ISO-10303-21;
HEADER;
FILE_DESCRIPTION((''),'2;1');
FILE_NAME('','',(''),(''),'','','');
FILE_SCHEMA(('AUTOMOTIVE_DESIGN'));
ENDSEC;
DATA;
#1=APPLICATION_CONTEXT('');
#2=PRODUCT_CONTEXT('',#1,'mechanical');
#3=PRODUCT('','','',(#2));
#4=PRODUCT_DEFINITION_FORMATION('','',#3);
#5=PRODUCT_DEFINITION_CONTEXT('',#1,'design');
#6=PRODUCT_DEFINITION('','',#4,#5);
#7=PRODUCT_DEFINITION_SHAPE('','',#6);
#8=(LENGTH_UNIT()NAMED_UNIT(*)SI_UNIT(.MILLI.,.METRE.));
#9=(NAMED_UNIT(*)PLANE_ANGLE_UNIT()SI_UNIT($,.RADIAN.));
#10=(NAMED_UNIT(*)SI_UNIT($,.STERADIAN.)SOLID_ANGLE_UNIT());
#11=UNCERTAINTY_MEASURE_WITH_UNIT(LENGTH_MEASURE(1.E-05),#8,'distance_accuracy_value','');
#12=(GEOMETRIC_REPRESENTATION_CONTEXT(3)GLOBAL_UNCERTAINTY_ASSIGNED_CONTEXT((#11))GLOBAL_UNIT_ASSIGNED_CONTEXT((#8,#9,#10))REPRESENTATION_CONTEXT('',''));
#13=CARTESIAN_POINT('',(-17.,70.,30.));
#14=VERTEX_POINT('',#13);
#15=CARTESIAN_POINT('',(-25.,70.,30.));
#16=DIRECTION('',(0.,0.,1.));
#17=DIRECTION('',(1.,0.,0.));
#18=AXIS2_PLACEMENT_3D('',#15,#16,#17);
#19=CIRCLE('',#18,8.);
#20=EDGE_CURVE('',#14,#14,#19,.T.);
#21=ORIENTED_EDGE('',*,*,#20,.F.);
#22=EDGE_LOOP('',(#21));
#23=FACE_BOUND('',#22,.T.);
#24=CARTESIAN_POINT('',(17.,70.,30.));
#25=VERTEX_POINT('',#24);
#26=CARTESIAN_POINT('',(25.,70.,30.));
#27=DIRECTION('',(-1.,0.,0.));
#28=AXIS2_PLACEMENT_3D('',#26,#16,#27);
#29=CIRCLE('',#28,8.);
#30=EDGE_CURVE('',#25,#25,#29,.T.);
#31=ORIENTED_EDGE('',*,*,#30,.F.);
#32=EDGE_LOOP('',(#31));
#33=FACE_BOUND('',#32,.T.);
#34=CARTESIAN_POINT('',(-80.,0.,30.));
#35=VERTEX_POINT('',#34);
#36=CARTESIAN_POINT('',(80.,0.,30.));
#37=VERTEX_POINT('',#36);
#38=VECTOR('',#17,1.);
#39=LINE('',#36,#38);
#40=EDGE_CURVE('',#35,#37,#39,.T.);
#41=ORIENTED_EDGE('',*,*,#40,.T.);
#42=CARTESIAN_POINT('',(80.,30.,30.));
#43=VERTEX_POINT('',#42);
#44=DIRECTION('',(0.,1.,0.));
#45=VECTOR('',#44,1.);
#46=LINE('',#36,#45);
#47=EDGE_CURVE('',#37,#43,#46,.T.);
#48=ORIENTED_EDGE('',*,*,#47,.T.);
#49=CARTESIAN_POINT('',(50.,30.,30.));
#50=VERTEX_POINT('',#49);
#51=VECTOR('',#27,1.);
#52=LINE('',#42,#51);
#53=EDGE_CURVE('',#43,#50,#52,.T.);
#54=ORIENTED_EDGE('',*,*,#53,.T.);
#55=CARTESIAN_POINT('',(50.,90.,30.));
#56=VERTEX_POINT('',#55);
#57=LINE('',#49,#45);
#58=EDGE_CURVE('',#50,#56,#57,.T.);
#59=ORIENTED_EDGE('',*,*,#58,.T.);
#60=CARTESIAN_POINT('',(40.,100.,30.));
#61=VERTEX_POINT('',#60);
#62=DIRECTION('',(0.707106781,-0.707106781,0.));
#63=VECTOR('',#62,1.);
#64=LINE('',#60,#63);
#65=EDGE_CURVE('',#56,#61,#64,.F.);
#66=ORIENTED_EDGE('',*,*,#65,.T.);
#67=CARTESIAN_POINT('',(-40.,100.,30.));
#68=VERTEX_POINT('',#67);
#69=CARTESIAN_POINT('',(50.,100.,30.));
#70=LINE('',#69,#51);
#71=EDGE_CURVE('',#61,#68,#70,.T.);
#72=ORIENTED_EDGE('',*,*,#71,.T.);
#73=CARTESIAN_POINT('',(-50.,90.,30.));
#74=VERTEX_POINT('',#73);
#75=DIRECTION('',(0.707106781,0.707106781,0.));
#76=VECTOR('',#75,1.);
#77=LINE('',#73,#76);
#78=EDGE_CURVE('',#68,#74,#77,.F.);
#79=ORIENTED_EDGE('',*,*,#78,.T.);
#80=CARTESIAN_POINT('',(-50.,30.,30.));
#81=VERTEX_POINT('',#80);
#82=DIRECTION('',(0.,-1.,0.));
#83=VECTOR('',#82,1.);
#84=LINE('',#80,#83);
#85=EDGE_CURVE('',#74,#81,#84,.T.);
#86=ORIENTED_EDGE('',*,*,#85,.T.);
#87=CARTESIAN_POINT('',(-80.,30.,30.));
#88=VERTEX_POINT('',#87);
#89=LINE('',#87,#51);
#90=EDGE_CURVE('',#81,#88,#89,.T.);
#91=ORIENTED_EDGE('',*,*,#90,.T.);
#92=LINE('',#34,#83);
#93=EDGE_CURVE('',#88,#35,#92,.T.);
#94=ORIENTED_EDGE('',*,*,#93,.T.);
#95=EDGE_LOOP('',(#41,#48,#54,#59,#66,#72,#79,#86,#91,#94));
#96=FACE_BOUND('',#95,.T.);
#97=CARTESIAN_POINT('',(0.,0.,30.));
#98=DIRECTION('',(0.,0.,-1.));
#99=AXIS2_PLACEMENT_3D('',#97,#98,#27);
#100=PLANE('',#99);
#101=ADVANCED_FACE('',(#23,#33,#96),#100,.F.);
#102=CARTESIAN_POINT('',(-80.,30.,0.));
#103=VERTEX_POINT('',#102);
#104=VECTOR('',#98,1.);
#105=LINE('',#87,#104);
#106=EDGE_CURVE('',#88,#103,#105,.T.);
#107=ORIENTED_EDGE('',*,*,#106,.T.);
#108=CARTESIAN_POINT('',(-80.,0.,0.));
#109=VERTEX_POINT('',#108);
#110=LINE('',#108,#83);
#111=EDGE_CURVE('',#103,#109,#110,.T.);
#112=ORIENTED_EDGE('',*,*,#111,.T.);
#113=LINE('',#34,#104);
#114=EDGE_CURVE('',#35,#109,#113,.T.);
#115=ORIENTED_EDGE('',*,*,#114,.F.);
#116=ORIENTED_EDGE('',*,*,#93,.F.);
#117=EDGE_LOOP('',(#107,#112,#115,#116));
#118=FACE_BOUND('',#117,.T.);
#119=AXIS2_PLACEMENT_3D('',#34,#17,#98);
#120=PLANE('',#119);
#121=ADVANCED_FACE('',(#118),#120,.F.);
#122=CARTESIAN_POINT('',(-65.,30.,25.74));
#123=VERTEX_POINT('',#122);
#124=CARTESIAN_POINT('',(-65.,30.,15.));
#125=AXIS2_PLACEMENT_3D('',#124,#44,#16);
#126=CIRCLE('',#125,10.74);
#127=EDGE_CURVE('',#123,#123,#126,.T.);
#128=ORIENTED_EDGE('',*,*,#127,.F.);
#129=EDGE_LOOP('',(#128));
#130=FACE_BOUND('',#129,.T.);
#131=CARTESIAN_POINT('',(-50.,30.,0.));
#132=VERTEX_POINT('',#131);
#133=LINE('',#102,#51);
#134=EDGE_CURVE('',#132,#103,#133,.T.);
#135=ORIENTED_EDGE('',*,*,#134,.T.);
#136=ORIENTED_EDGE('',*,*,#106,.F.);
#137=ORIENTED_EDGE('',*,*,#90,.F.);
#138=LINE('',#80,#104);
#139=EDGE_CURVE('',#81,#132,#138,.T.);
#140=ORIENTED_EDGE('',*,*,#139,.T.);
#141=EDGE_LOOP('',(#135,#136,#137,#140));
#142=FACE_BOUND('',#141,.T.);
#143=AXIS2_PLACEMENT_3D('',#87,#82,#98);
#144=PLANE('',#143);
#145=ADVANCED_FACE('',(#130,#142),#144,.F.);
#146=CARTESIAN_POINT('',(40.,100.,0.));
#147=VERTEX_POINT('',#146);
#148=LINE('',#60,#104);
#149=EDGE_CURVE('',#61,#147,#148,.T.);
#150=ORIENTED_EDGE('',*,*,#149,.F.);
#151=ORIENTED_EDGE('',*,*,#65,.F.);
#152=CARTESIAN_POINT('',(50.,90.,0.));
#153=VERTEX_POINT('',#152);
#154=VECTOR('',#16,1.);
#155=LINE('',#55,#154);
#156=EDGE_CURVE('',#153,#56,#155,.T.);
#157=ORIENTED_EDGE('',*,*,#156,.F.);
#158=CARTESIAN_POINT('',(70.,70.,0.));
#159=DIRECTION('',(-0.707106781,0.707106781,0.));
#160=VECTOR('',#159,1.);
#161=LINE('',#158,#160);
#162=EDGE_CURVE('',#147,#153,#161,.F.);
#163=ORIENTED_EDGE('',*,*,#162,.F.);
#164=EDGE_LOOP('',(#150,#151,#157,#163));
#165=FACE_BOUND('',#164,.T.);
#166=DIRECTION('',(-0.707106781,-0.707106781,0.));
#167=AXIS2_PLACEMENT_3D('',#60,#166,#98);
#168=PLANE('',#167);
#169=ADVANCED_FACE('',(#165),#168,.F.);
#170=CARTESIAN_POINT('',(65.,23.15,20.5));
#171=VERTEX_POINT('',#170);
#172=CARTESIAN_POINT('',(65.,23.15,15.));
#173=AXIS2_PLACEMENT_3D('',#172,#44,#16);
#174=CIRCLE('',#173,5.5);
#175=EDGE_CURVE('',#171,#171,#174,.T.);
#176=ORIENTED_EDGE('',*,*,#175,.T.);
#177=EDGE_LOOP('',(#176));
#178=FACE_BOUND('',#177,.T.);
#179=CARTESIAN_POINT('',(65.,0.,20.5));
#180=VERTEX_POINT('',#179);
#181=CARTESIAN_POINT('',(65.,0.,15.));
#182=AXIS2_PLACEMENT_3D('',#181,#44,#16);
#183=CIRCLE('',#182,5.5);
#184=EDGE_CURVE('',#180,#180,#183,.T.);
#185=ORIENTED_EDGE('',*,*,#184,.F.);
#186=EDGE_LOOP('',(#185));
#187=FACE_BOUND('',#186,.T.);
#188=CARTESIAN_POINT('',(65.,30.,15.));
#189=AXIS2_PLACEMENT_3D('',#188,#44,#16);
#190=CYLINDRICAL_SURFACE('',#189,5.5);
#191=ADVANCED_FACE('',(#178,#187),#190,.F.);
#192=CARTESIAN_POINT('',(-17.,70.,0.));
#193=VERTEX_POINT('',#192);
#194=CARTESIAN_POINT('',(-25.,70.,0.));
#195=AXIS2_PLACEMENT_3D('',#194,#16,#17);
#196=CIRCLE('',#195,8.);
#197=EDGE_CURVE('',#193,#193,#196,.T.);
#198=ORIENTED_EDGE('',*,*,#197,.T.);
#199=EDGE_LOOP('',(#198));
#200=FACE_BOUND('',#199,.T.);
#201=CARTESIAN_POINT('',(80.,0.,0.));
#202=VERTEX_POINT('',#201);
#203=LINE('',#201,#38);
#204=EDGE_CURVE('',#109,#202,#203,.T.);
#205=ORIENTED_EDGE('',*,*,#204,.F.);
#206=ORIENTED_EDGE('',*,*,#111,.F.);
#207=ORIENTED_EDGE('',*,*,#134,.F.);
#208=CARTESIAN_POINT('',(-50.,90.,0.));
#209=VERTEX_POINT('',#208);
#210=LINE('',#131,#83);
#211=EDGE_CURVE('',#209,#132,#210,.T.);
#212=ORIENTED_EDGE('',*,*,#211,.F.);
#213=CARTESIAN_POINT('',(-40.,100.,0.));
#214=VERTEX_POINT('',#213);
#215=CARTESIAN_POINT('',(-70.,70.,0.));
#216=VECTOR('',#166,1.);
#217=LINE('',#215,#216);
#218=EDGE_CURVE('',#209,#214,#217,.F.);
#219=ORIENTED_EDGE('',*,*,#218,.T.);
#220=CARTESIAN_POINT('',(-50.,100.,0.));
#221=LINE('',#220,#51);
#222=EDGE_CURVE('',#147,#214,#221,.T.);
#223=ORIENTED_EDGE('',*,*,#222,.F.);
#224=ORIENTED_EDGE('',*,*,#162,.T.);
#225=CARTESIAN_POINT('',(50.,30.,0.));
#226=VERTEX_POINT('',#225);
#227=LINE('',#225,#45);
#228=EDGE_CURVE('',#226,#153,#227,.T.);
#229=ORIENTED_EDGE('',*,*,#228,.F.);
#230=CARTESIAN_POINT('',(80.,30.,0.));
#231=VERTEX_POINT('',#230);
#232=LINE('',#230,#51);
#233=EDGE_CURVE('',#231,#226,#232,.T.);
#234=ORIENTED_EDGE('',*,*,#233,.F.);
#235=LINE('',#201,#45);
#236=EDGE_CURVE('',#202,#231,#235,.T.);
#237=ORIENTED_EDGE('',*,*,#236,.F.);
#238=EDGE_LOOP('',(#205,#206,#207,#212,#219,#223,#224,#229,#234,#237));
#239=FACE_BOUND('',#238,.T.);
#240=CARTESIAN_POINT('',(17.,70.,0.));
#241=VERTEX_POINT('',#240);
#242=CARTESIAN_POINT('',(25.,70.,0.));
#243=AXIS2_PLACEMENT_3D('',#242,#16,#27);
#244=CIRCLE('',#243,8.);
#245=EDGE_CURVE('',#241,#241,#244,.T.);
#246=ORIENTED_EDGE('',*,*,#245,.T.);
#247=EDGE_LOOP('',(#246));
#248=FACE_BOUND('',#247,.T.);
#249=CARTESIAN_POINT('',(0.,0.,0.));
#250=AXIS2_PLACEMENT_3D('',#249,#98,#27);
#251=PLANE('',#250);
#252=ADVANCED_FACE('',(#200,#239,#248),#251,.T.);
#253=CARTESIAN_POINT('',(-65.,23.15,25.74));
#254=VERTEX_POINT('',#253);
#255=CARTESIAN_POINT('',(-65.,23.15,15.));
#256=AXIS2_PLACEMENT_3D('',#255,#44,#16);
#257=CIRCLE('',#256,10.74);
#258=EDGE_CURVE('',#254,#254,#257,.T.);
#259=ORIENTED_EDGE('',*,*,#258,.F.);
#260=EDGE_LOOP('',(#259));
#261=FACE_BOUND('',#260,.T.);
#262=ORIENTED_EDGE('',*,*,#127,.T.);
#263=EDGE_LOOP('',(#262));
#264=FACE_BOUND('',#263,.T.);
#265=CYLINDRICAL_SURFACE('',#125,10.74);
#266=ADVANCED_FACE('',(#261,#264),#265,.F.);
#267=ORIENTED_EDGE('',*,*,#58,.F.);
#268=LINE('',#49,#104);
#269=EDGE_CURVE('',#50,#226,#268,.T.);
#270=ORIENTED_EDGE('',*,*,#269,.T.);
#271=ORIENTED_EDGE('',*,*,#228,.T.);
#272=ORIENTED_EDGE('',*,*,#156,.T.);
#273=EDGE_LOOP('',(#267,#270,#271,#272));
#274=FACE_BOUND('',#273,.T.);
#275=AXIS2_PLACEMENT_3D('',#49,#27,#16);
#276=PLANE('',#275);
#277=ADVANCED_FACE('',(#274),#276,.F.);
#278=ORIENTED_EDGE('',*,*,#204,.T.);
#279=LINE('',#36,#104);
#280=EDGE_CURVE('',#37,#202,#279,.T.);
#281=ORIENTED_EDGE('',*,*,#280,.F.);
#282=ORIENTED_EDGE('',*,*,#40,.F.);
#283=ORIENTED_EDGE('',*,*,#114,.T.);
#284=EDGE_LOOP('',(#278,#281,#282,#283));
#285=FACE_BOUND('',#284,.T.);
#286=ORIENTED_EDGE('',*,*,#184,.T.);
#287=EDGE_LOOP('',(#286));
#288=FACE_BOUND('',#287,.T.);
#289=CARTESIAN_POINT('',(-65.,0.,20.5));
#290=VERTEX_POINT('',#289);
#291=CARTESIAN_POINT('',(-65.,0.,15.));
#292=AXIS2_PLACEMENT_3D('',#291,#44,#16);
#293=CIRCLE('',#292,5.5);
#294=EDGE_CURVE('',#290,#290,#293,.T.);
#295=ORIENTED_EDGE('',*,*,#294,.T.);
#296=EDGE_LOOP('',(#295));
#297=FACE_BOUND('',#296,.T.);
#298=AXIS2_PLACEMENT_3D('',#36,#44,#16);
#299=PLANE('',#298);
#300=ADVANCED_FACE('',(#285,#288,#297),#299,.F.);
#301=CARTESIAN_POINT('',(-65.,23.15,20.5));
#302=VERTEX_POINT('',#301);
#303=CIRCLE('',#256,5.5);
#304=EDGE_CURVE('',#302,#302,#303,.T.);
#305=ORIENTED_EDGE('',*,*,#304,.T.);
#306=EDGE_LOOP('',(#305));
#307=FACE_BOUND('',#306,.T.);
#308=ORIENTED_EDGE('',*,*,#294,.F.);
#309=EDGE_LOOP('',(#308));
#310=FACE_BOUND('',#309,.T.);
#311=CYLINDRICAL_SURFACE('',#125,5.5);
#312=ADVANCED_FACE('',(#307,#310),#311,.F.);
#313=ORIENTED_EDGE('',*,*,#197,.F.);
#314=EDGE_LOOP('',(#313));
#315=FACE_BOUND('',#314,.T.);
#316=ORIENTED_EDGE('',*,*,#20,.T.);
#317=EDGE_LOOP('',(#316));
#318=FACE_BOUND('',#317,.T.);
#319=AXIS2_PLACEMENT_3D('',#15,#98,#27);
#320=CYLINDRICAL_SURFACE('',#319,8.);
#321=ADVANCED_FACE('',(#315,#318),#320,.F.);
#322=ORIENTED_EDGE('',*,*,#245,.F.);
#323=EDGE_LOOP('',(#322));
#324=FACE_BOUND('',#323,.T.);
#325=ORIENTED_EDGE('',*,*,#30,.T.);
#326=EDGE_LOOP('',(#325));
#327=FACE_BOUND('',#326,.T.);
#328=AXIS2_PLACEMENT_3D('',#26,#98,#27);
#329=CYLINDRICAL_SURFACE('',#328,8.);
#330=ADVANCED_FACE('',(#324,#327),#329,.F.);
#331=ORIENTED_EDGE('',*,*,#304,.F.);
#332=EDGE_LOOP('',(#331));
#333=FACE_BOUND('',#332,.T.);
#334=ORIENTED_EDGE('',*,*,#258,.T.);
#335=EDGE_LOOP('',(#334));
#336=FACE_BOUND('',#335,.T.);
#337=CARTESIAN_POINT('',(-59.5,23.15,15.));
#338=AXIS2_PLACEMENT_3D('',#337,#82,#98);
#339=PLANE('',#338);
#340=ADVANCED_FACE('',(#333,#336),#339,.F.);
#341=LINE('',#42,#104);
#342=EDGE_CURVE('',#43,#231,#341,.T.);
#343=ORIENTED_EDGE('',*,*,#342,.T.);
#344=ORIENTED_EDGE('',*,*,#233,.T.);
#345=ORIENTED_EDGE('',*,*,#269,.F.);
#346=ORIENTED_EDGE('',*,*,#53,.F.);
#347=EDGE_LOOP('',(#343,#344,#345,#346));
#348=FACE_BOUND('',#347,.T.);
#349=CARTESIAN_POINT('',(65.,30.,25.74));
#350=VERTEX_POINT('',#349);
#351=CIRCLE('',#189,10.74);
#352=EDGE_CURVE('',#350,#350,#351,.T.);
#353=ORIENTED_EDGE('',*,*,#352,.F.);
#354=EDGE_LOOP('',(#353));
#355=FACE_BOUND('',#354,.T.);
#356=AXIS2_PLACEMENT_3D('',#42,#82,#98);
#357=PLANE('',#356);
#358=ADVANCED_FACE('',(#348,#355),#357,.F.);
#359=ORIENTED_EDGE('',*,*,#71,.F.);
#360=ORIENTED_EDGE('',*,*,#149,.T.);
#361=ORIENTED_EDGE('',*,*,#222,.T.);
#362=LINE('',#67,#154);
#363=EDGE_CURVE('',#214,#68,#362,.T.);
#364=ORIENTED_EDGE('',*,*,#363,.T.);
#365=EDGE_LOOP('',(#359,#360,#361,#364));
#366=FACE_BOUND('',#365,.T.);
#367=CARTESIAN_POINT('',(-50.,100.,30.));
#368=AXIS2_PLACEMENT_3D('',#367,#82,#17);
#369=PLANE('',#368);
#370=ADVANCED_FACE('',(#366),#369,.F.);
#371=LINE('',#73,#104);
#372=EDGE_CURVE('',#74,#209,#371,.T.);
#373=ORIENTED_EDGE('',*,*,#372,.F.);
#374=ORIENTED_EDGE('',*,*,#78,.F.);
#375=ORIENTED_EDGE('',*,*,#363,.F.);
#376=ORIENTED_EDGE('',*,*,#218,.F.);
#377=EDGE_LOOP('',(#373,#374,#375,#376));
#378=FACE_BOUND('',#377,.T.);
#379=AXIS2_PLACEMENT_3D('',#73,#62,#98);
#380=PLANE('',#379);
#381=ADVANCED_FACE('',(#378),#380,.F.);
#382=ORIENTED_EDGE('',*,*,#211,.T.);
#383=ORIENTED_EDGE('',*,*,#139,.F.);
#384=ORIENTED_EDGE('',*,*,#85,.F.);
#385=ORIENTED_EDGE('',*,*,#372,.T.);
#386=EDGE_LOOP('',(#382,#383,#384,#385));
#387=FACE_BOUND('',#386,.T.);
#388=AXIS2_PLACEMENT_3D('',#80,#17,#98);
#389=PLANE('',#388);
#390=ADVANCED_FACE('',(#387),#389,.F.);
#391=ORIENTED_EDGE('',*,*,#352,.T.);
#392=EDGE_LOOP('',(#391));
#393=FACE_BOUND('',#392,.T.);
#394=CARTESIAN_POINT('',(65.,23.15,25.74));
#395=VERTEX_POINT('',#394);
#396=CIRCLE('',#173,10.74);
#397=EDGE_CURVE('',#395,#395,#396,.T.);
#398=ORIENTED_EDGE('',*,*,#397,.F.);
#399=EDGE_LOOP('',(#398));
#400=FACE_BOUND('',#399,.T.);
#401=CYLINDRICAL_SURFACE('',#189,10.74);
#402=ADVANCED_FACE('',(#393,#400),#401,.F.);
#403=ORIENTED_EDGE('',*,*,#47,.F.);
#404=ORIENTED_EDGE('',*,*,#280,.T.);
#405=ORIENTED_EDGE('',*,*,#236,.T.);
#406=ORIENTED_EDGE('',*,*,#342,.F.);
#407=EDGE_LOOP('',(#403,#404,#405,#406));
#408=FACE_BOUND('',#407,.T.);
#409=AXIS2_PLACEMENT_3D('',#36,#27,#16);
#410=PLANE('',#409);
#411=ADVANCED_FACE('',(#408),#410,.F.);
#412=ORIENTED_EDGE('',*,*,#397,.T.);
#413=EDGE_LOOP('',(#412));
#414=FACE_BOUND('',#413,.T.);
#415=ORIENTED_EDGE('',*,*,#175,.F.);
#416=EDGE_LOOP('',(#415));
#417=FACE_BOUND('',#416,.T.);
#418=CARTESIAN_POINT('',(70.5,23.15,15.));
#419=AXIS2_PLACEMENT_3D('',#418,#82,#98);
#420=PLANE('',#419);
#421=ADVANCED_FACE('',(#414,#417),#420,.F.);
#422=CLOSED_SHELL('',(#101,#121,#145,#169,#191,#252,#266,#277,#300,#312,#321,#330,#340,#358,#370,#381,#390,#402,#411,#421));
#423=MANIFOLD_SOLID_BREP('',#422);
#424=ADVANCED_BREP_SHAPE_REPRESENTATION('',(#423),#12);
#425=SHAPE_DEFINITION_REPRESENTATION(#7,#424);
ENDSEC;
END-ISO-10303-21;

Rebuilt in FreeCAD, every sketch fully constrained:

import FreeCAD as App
import Part
import Sketcher

V = App.Vector
Q = App.Units.Quantity


def edges_at(feature, points):
    """Names of the edges that pass closest to the given points."""
    edges = feature.Shape.Edges
    near = lambda p: min(range(len(edges)), key=lambda i: edges[i].distToShape(Part.Vertex(*p))[0])
    return sorted({f"Edge{near(p) + 1}" for p in points})

doc = App.newDocument("Part")
body = doc.addObject("PartDesign::Body", "Body")

# Sketch on XY plane
sketch1 = doc.addObject("Sketcher::SketchObject", "Sketch")
body.addObject(sketch1)
sketch1.AttachmentSupport = (doc.XY_Plane, [""])
sketch1.MapMode = "FlatFace"
sketch1.addGeometry(Part.LineSegment(V(-80, 0, 0), V(80, 0, 0)), False)
sketch1.addGeometry(Part.LineSegment(V(80, 0, 0), V(80, 30, 0)), False)
sketch1.addGeometry(Part.LineSegment(V(80, 30, 0), V(50, 30, 0)), False)
sketch1.addGeometry(Part.LineSegment(V(50, 30, 0), V(50, 100, 0)), False)
sketch1.addGeometry(Part.LineSegment(V(50, 100, 0), V(-50, 100, 0)), False)
sketch1.addGeometry(Part.LineSegment(V(-50, 100, 0), V(-50, 30, 0)), False)
sketch1.addGeometry(Part.LineSegment(V(-50, 30, 0), V(-80, 30, 0)), False)
sketch1.addGeometry(Part.LineSegment(V(-80, 30, 0), V(-80, 0, 0)), False)
sketch1.addGeometry(Part.Circle(V(25, 70, 0), V(0, 0, 1), 8), False)
sketch1.addGeometry(Part.Circle(V(-25, 70, 0), V(0, 0, 1), 8), False)
sketch1.addConstraint(Sketcher.Constraint("Coincident", 0, 2, 1, 1))
sketch1.addConstraint(Sketcher.Constraint("Coincident", 1, 2, 2, 1))
sketch1.addConstraint(Sketcher.Constraint("Coincident", 2, 2, 3, 1))
sketch1.addConstraint(Sketcher.Constraint("Coincident", 3, 2, 4, 1))
sketch1.addConstraint(Sketcher.Constraint("Coincident", 4, 2, 5, 1))
sketch1.addConstraint(Sketcher.Constraint("Coincident", 5, 2, 6, 1))
sketch1.addConstraint(Sketcher.Constraint("Coincident", 6, 2, 7, 1))
sketch1.addConstraint(Sketcher.Constraint("Coincident", 7, 2, 0, 1))
sketch1.addConstraint(Sketcher.Constraint("Horizontal", 0))
sketch1.addConstraint(Sketcher.Constraint("Vertical", 1))
sketch1.addConstraint(Sketcher.Constraint("Horizontal", 2))
sketch1.addConstraint(Sketcher.Constraint("Vertical", 3))
sketch1.addConstraint(Sketcher.Constraint("Horizontal", 4))
sketch1.addConstraint(Sketcher.Constraint("Vertical", 5))
sketch1.addConstraint(Sketcher.Constraint("Horizontal", 6))
sketch1.addConstraint(Sketcher.Constraint("Vertical", 7))
sketch1.addConstraint(Sketcher.Constraint("Equal", 8, 9))
sketch1.addConstraint(Sketcher.Constraint("Symmetric", 0, 2, 7, 2, -1, 1))
sketch1.addConstraint(Sketcher.Constraint("Symmetric", 8, 3, 9, 3, -2))
sketch1.addConstraint(Sketcher.Constraint("Symmetric", 2, 2, 5, 2, -2))
sketch1.addConstraint(Sketcher.Constraint("Equal", 6, 1))
sketch1.addConstraint(Sketcher.Constraint("Diameter", 8, Q("16 mm")))
sketch1.addConstraint(Sketcher.Constraint("DistanceX", 0, 1, 0, 2, Q("160 mm")))
sketch1.addConstraint(Sketcher.Constraint("DistanceX", 2, 2, 2, 1, Q("30 mm")))
sketch1.addConstraint(Sketcher.Constraint("DistanceY", 3, 1, 3, 2, Q("70 mm")))
sketch1.addConstraint(Sketcher.Constraint("DistanceX", -1, 1, 8, 3, Q("25 mm")))
sketch1.addConstraint(Sketcher.Constraint("DistanceY", -1, 1, 8, 3, Q("70 mm")))
pad1 = doc.addObject("PartDesign::Pad", "Pad")
body.addObject(pad1)
pad1.Profile = sketch1
pad1.Length = 30
doc.recompute()

chamfer = doc.addObject("PartDesign::Chamfer", "Chamfer")
body.addObject(chamfer)
chamfer.Base = (pad1, edges_at(pad1, [(50, 100, 15), (-50, 100, 15)]))
chamfer.Size = 10

# Sketch on XZ plane
sketch2 = doc.addObject("Sketcher::SketchObject", "Sketch001")
body.addObject(sketch2)
sketch2.AttachmentSupport = (doc.XZ_Plane, [""])
sketch2.MapMode = "FlatFace"
sketch2.AttachmentOffset = App.Placement(V(0, 0, -30), App.Rotation())
sketch2.addGeometry(Part.Circle(V(-65, 15, 0), V(0, 0, 1), 6), False)
sketch2.addGeometry(Part.Circle(V(65, 15, 0), V(0, 0, 1), 6), False)
sketch2.addConstraint(Sketcher.Constraint("Equal", 0, 1))
sketch2.addConstraint(Sketcher.Constraint("Symmetric", 0, 3, 1, 3, -2))
sketch2.addConstraint(Sketcher.Constraint("Diameter", 0, Q("11 mm")))
sketch2.addConstraint(Sketcher.Constraint("DistanceX", 0, 3, -1, 1, Q("65 mm")))
sketch2.addConstraint(Sketcher.Constraint("DistanceY", -1, 1, 0, 3, Q("15 mm")))
doc.recompute()
hole = doc.addObject("PartDesign::Hole", "Hole")
body.addObject(hole)
hole.Profile = sketch2
hole.ThreadType = "None"
hole.Diameter = 11
hole.DepthType = "ThroughAll"
hole.HoleCutType = "Counterbore"
hole.HoleCutDiameter = 21.48
hole.HoleCutDepth = 6.85
hole.Reversed = True

doc.recompute()
